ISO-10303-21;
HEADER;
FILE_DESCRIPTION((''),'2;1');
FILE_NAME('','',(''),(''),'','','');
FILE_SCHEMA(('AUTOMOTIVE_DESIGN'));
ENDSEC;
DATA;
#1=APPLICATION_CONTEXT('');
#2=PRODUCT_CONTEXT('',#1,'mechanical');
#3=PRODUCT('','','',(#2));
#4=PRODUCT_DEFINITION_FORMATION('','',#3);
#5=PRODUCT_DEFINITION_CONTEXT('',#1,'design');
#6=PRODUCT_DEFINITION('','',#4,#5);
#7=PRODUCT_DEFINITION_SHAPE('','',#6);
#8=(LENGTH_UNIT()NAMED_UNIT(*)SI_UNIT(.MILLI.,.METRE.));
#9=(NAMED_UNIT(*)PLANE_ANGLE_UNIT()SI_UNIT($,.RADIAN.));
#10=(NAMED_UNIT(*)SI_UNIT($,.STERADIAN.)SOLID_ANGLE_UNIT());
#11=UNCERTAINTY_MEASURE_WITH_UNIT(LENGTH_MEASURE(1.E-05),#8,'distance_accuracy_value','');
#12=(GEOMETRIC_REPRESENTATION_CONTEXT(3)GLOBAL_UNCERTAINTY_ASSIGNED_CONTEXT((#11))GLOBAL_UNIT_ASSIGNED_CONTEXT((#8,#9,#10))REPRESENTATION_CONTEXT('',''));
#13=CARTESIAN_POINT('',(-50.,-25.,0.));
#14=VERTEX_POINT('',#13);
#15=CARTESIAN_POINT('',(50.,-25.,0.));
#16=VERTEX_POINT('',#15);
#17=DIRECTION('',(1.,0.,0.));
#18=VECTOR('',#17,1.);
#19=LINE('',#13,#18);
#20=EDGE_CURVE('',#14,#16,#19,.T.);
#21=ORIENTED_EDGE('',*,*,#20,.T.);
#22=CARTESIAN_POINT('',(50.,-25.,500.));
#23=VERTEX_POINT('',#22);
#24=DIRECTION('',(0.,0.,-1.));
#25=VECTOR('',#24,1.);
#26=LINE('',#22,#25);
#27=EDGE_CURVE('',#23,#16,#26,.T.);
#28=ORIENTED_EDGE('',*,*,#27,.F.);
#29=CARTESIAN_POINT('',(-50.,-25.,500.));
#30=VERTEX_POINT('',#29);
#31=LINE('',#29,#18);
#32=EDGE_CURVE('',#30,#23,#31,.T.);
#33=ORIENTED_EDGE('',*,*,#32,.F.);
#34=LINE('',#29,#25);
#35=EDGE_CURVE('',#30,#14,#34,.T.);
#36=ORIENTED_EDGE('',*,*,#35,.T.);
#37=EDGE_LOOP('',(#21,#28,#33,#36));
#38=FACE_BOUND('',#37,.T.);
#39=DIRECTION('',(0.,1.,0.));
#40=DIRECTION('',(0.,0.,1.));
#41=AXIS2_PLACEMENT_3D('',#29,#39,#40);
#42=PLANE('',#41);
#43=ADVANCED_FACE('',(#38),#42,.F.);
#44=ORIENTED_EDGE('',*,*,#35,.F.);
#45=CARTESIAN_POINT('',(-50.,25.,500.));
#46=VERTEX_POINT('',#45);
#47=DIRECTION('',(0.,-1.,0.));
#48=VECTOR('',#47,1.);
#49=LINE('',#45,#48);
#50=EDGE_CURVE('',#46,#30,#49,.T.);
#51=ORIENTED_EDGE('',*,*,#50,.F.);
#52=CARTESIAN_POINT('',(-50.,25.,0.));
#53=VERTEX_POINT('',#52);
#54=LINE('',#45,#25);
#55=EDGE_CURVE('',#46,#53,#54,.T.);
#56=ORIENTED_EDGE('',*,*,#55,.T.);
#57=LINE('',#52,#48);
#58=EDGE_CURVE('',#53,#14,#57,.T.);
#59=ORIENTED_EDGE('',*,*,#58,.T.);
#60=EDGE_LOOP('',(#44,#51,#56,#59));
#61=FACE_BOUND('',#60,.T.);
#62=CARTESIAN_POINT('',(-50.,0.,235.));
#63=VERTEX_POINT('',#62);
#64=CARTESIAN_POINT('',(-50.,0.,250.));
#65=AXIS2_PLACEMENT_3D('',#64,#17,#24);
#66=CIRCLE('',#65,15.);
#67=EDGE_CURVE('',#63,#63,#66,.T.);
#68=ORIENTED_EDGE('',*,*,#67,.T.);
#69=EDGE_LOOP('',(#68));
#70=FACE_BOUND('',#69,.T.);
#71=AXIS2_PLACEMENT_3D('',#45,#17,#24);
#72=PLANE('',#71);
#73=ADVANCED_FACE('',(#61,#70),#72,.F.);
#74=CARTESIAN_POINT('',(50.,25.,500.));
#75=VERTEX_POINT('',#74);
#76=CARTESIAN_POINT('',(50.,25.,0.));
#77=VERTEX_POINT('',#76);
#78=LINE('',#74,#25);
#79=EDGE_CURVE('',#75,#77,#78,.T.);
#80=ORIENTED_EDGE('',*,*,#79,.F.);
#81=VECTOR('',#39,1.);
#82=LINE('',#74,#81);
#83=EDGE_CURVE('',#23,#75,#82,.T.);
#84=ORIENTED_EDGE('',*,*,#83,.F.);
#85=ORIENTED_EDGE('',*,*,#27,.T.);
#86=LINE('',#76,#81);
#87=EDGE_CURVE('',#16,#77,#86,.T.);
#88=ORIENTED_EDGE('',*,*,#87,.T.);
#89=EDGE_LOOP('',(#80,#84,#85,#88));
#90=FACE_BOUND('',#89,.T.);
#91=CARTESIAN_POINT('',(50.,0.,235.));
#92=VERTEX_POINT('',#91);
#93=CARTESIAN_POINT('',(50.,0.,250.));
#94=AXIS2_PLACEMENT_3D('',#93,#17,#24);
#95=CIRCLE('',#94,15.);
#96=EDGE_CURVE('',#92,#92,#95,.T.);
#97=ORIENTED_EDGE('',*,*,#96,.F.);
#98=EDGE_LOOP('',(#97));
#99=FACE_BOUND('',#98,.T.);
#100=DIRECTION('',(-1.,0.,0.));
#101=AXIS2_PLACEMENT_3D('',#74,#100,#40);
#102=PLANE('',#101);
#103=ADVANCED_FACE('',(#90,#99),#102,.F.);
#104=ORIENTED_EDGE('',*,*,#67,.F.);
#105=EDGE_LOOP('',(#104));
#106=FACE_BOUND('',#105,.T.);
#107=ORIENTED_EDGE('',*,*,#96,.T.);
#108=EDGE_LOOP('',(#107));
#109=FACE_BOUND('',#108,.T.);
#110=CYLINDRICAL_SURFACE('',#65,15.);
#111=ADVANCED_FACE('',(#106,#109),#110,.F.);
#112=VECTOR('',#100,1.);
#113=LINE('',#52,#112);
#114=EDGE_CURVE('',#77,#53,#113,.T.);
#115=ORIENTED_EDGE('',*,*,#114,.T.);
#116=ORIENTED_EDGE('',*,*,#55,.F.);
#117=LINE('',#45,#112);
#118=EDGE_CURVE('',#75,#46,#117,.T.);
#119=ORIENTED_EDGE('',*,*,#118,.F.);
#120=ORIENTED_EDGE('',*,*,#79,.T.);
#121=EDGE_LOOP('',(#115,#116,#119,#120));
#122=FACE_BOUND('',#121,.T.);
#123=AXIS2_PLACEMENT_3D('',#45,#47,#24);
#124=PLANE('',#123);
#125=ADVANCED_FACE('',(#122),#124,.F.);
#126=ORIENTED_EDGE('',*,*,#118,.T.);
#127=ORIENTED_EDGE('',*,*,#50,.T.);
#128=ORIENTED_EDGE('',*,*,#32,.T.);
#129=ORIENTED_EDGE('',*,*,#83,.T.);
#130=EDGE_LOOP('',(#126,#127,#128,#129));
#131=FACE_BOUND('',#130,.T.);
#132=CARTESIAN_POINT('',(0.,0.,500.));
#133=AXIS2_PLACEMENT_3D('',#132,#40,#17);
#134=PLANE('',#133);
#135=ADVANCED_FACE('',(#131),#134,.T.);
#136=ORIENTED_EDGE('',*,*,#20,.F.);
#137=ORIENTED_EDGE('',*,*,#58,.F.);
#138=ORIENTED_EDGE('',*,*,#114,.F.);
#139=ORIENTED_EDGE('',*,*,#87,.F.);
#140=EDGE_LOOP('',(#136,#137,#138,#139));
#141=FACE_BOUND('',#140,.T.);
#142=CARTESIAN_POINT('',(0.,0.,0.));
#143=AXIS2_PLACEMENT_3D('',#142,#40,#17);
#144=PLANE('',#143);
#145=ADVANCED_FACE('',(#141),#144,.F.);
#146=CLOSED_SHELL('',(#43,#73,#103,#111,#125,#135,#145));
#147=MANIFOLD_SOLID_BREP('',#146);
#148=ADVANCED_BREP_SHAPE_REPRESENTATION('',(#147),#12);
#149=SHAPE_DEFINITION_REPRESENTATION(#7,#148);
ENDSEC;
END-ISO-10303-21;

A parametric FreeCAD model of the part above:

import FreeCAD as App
import Part
import Sketcher
from FreeCAD import Vector
Q = App.Units.Quantity


def add_polygon(sketch, points):
    """Adds a closed chain of lines whose ends are joined by coincident constraints."""
    first, n = sketch.GeometryCount, len(points)
    for a, b in zip(points, points[1:] + points[:1]):
        sketch.addGeometry(Part.LineSegment(App.Vector(*a, 0), App.Vector(*b, 0)), False)
    for i in range(n):
        sketch.addConstraint(Sketcher.Constraint("Coincident", first + i, 2, first + (i + 1) % n, 1))

doc = App.newDocument("Part")
body = doc.addObject("PartDesign::Body", "Body")

# Sketch on XY plane
sketch1 = body.newObject("Sketcher::SketchObject", "Sketch")
sketch1.AttachmentSupport = (doc.getObject("XY_Plane"), [""])
sketch1.MapMode = "FlatFace"
add_polygon(sketch1, [(-50, 25), (-50, -25), (50, -25), (50, 25)])  # lines 0-3
sketch1.addConstraint([
    Sketcher.Constraint("Vertical", 0),
    Sketcher.Constraint("Horizontal", 1),
    Sketcher.Constraint("Vertical", 2),
    Sketcher.Constraint("Horizontal", 3),
    Sketcher.Constraint("Symmetric", 0, 2, 2, 2, -1, 1),
    Sketcher.Constraint("DistanceX", 1, 1, 1, 2, Q("100 mm")),
    Sketcher.Constraint("DistanceY", 0, 2, 0, 1, Q("50 mm")),
])
pad1 = body.newObject("PartDesign::Pad", "Pad")
pad1.Profile = sketch1
pad1.Length = 500

# Sketch on YZ plane
sketch2 = body.newObject("Sketcher::SketchObject", "Sketch001")
sketch2.AttachmentSupport = (doc.getObject("YZ_Plane"), [""])
sketch2.MapMode = "FlatFace"
sketch2.AttachmentOffset = App.Placement(Vector(0, 0, 50), App.Rotation())
sketch2.addGeometry(Part.Circle(Vector(0, 250, 0), Vector(0, 0, 1), 15), False)
sketch2.addConstraint([
    Sketcher.Constraint("PointOnObject", 0, 3, -2),
    Sketcher.Constraint("Diameter", 0, Q("30 mm")),
    Sketcher.Constraint("DistanceY", -1, 1, 0, 3, Q("250 mm")),
])
pocket1 = body.newObject("PartDesign::Pocket", "Pocket")
pocket1.Profile = sketch2
pocket1.Type = "ThroughAll"

doc.recompute()
